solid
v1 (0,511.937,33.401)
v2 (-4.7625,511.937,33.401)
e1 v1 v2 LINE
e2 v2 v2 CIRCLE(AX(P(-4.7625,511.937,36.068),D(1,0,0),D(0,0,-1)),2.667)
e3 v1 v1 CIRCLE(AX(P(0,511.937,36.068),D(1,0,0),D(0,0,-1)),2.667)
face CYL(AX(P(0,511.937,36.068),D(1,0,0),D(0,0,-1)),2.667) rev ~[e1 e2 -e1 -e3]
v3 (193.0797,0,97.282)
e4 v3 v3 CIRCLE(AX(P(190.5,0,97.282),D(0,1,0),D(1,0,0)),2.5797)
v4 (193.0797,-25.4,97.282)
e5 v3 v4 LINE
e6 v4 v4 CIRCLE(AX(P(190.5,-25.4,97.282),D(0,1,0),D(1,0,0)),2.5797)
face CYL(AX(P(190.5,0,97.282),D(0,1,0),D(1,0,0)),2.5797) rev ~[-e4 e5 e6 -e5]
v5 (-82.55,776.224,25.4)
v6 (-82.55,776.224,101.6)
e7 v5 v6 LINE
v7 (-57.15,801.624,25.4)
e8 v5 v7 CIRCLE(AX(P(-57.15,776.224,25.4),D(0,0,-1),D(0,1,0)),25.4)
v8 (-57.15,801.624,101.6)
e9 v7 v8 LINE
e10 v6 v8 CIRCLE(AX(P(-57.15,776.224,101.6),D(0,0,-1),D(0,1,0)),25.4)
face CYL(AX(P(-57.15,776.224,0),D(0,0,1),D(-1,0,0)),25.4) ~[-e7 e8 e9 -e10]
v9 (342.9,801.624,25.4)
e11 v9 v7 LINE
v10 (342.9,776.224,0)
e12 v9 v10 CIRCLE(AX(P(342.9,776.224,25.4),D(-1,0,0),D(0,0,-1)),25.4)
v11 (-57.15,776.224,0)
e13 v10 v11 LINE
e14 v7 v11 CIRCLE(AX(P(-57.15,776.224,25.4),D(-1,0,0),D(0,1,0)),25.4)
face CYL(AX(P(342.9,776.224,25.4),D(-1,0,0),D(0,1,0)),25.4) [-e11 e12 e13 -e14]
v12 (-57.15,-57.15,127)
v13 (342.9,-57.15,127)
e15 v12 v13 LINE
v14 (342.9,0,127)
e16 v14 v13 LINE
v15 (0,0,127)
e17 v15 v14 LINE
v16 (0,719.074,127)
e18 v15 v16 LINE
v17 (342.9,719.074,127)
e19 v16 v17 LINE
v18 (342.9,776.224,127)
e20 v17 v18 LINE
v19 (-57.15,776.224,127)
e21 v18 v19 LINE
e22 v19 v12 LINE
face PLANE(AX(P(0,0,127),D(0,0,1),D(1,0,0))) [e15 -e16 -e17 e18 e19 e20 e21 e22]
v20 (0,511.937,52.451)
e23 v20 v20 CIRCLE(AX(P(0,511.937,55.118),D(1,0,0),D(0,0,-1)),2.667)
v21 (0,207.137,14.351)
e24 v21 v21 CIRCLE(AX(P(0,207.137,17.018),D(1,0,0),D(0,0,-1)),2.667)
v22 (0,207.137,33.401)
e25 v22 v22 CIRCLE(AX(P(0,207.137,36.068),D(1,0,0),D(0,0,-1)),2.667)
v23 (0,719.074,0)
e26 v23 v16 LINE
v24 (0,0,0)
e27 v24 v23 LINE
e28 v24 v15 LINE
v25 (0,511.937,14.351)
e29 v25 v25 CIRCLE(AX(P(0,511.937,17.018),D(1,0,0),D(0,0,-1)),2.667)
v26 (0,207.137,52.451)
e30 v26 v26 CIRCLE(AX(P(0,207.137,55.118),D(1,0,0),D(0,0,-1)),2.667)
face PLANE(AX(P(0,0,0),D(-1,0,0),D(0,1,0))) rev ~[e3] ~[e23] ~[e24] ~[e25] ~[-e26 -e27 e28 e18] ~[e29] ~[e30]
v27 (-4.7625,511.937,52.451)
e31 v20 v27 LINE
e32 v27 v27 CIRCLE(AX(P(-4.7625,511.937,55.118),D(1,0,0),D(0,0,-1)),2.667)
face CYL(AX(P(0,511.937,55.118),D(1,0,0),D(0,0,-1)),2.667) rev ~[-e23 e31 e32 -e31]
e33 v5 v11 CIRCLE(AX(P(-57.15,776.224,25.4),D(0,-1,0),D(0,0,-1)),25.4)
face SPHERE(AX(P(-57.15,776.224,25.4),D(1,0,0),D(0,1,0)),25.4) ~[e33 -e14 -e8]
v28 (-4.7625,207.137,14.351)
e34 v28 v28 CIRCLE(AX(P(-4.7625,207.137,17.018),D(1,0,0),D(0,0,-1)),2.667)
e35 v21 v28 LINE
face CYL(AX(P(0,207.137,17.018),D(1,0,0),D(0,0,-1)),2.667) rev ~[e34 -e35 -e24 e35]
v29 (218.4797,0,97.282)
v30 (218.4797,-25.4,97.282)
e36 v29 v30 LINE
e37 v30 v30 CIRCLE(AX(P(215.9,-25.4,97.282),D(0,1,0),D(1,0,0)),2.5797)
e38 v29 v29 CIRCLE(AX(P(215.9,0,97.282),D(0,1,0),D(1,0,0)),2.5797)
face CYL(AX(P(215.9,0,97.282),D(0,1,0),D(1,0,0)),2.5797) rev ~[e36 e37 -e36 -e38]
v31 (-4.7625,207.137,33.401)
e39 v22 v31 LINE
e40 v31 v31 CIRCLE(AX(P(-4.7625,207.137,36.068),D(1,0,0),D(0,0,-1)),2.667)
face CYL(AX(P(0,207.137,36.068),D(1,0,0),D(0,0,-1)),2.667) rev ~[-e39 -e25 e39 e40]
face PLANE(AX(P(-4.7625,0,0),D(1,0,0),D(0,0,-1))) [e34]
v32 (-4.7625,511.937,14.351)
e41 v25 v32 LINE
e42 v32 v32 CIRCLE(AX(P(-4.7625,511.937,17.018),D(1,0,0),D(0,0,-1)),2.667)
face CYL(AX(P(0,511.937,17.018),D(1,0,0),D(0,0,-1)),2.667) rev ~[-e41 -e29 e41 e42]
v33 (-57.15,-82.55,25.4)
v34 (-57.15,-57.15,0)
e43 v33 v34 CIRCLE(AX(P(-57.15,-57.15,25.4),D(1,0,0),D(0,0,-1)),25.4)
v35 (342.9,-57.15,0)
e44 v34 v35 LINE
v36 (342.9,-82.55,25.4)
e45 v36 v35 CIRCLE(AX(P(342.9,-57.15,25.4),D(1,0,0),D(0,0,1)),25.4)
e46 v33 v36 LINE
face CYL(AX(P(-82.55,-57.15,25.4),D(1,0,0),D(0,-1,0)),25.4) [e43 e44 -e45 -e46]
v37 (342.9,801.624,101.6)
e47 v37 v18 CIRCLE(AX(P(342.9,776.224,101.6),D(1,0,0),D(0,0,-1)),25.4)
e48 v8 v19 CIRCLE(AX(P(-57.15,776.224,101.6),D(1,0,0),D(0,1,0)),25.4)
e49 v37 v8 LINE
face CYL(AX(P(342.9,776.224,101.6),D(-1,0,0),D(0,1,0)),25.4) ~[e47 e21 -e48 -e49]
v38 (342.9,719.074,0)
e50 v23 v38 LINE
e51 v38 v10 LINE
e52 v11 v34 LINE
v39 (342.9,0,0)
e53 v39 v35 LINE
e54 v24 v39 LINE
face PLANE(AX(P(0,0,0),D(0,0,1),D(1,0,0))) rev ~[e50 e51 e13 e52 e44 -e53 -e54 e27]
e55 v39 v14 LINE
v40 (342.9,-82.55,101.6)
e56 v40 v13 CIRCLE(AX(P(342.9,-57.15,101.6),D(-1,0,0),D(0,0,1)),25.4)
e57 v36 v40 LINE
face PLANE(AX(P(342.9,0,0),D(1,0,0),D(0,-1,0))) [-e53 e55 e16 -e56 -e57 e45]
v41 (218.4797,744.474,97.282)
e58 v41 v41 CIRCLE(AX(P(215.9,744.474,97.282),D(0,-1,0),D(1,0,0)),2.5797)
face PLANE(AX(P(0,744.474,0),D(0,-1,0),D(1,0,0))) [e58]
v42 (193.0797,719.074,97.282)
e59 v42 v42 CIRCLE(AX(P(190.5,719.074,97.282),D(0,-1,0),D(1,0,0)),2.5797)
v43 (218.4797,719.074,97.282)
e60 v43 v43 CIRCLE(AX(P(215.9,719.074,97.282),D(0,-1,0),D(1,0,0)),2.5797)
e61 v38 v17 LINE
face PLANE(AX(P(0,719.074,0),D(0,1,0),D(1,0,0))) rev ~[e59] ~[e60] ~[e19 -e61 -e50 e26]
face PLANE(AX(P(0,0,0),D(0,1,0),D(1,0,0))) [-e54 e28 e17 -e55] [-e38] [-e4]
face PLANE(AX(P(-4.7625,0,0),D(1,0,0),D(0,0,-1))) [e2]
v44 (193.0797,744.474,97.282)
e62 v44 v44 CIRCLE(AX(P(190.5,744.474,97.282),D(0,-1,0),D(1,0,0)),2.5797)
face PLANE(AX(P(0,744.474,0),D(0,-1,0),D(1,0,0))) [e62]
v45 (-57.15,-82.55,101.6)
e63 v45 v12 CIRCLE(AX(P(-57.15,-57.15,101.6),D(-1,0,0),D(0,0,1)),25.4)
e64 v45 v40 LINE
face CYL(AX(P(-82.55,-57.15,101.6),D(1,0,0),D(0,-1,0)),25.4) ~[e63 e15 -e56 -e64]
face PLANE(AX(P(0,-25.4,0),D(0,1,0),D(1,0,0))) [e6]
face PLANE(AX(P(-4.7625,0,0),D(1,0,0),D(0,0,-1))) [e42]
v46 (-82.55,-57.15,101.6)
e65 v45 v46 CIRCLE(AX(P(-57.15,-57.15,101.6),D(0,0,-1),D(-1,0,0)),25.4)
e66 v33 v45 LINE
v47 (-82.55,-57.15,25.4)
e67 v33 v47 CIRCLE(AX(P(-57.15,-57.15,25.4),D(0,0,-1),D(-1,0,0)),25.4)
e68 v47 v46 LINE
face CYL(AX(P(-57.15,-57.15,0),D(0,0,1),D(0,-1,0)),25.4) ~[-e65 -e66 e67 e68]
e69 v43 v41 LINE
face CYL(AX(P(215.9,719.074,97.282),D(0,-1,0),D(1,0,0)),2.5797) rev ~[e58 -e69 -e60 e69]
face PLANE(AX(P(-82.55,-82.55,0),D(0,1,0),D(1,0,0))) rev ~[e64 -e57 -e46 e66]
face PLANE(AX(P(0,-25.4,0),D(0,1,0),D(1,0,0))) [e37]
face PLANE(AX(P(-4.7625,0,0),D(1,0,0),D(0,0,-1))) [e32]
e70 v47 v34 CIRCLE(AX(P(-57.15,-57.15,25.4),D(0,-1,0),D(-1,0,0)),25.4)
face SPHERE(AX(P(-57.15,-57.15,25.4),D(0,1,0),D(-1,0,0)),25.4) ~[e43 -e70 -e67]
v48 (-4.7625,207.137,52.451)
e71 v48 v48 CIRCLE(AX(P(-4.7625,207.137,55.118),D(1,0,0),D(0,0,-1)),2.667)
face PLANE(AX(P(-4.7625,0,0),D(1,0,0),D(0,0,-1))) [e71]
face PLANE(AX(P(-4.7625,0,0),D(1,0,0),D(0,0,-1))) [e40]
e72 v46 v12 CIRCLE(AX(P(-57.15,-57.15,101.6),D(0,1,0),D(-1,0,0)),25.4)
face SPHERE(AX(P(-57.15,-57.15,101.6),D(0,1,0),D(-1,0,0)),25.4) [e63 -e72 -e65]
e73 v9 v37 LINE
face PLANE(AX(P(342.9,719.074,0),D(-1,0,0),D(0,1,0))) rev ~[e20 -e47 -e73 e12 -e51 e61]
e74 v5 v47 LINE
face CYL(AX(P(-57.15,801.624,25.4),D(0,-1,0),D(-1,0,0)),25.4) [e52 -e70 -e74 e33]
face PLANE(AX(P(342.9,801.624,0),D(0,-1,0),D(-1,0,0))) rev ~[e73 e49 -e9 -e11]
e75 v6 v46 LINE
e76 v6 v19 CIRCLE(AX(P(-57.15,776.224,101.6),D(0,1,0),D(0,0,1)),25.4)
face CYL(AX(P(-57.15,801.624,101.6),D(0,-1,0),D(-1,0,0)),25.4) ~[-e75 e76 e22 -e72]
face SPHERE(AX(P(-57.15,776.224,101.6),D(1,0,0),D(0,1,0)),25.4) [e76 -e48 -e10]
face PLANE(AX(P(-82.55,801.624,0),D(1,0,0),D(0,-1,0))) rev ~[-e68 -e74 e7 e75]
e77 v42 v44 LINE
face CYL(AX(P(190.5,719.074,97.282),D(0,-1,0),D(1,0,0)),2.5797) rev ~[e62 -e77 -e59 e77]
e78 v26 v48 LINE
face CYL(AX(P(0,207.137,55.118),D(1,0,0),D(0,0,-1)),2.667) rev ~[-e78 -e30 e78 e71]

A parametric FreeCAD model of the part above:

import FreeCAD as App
import Part
import Sketcher
from FreeCAD import Vector
Q = App.Units.Quantity


def edges_at(feature, points):
    """Names of the edges that pass closest to the given points."""
    edges = feature.Shape.Edges
    near = lambda p: min(range(len(edges)), key=lambda i: edges[i].distToShape(Part.Vertex(*p))[0])
    return sorted({f"Edge{near(p) + 1}" for p in points})

doc = App.newDocument("Part")
params = doc.addObject("Spreadsheet::Sheet", "Params")
for row, (alias, value) in enumerate([
    ("sketch1_width", "13.5 in"),
    ("sketch1_height", "28.31 in"),
    ("sketch1_height2", "3.25 in"),
    ("pad1_length", "5 in"),
    ("fillet_radius", "1 in"),
    ("sketch2_diameter", "0.21 in"),
    ("pocket1_length", "0.1875 in"),
    ("sketch3_diameter", "0.203126 in"),
    ("pocket2_length", "1 in"),
    ("sketch4_diameter", "0.203126 in"),
    ("pocket3_length", "1 in"),
], start=1):
    params.set(f"A{row}", alias)
    params.set(f"B{row}", "=" + value)
    params.setAlias(f"B{row}", alias)

body = doc.addObject("PartDesign::Body", "Body")

# Sketch on XY plane
sketch1 = body.newObject("Sketcher::SketchObject", "Sketch")
sketch1.AttachmentSupport = (doc.getObject("XY_Plane"), [""])
sketch1.MapMode = "FlatFace"
sketch1.addGeometry(Part.LineSegment(Vector(343, 0, 0), Vector(0, 0, 0)), False)
sketch1.addGeometry(Part.LineSegment(Vector(0, 0, 0), Vector(0, 719, 0)), False)
sketch1.addGeometry(Part.LineSegment(Vector(0, 719, 0), Vector(343, 719, 0)), False)
sketch1.addGeometry(Part.LineSegment(Vector(343, 719, 0), Vector(343, 802, 0)), False)
sketch1.addGeometry(Part.LineSegment(Vector(343, 802, 0), Vector(-83, 802, 0)), False)
sketch1.addGeometry(Part.LineSegment(Vector(-83, 802, 0), Vector(-83, -83, 0)), False)
sketch1.addGeometry(Part.LineSegment(Vector(-83, -83, 0), Vector(343, -83, 0)), False)
sketch1.addGeometry(Part.LineSegment(Vector(343, -83, 0), Vector(343, 0, 0)), False)
sketch1.addConstraint(Sketcher.Constraint("Coincident", 0, 2, 1, 1))
sketch1.addConstraint(Sketcher.Constraint("Coincident", 1, 2, 2, 1))
sketch1.addConstraint(Sketcher.Constraint("Coincident", 2, 2, 3, 1))
sketch1.addConstraint(Sketcher.Constraint("Coincident", 3, 2, 4, 1))
sketch1.addConstraint(Sketcher.Constraint("Coincident", 4, 2, 5, 1))
sketch1.addConstraint(Sketcher.Constraint("Coincident", 5, 2, 6, 1))
sketch1.addConstraint(Sketcher.Constraint("Coincident", 6, 2, 7, 1))
sketch1.addConstraint(Sketcher.Constraint("Coincident", 7, 2, 0, 1))
sketch1.addConstraint(Sketcher.Constraint("Horizontal", 0))
sketch1.addConstraint(Sketcher.Constraint("Vertical", 1))
sketch1.addConstraint(Sketcher.Constraint("Horizontal", 2))
sketch1.addConstraint(Sketcher.Constraint("Vertical", 3))
sketch1.addConstraint(Sketcher.Constraint("Horizontal", 4))
sketch1.addConstraint(Sketcher.Constraint("Vertical", 5))
sketch1.addConstraint(Sketcher.Constraint("Horizontal", 6))
sketch1.addConstraint(Sketcher.Constraint("Vertical", 7))
sketch1.addConstraint(Sketcher.Constraint("Coincident", 0, 2, -1, 1))
sketch1.addConstraint(Sketcher.Constraint("Vertical", 3, 2, 6, 2))
sketch1.addConstraint(Sketcher.Constraint("Equal", 3, 7))
sketch1.addConstraint(Sketcher.Constraint("DistanceX", 0, 2, 0, 1, Q("13.5 in")))
sketch1.addConstraint(Sketcher.Constraint("DistanceY", 1, 1, 1, 2, Q("28.31 in")))
sketch1.addConstraint(Sketcher.Constraint("DistanceY", 3, 1, 3, 2, Q("3.25 in")))
sketch1.addConstraint(Sketcher.Constraint("DistanceX", 4, 2, -1, 1, Q("3.25 in")))
sketch1.setExpression("Constraints[19]", "Params.sketch1_width")
sketch1.setExpression("Constraints[20]", "Params.sketch1_height")
sketch1.setExpression("Constraints[21]", "Params.sketch1_height2")
pad1 = body.newObject("PartDesign::Pad", "Pad")
pad1.Profile = sketch1
pad1.setExpression("Length", "Params.pad1_length")
doc.recompute()

fillet = body.newObject("PartDesign::Fillet", "Fillet")
fillet.Base = (pad1, edges_at(pad1, [
    (130.175, 801.624, 127),
    (130.175, 801.624, 0),
    (-82.55, 801.624, 63.5),
    (-82.55, 359.537, 127),
    (-82.55, 359.537, 0),
    (-82.55, -82.55, 63.5),
    (130.175, -82.55, 0),
    (130.175, -82.55, 127),
]))
fillet.setExpression("Radius", "Params.fillet_radius")

# Sketch on YZ plane
sketch2 = body.newObject("Sketcher::SketchObject", "Sketch001")
sketch2.AttachmentSupport = (doc.getObject("YZ_Plane"), [""])
sketch2.MapMode = "FlatFace"
sketch2.addGeometry(Part.Circle(Vector(207.1, 55.1, 0), Vector(0, 0, 1), 2.7), False)
sketch2.addGeometry(Part.Circle(Vector(207.1, 36.1, 0), Vector(0, 0, 1), 2.7), False)
sketch2.addGeometry(Part.Circle(Vector(207.1, 17, 0), Vector(0, 0, 1), 2.7), False)
sketch2.addGeometry(Part.Circle(Vector(511.9, 55.1, 0), Vector(0, 0, 1), 2.7), False)
sketch2.addGeometry(Part.Circle(Vector(511.9, 36.1, 0), Vector(0, 0, 1), 2.7), False)
sketch2.addGeometry(Part.Circle(Vector(511.9, 17, 0), Vector(0, 0, 1), 2.7), False)
sketch2.addConstraint(Sketcher.Constraint("Equal", 0, 1))
sketch2.addConstraint(Sketcher.Constraint("Equal", 1, 2))
sketch2.addConstraint(Sketcher.Constraint("Equal", 2, 3))
sketch2.addConstraint(Sketcher.Constraint("Equal", 3, 4))
sketch2.addConstraint(Sketcher.Constraint("Equal", 4, 5))
sketch2.addConstraint(Sketcher.Constraint("Horizontal", 0, 3, 3, 3))
sketch2.addConstraint(Sketcher.Constraint("Horizontal", 1, 3, 4, 3))
sketch2.addConstraint(Sketcher.Constraint("Horizontal", 2, 3, 5, 3))
sketch2.addConstraint(Sketcher.Constraint("Vertical", 0, 3, 1, 3))
sketch2.addConstraint(Sketcher.Constraint("Vertical", 1, 3, 2, 3))
sketch2.addConstraint(Sketcher.Constraint("Vertical", 3, 3, 4, 3))
sketch2.addConstraint(Sketcher.Constraint("Vertical", 4, 3, 5, 3))
sketch2.addConstraint(Sketcher.Constraint("Diameter", 0, Q("0.21 in")))
sketch2.addConstraint(Sketcher.Constraint("DistanceY", 1, 3, 0, 3, Q("0.75 in")))
sketch2.addConstraint(Sketcher.Constraint("DistanceY", 2, 3, 1, 3, Q("0.75 in")))
sketch2.addConstraint(Sketcher.Constraint("DistanceX", -1, 1, 0, 3, Q("8.155 in")))
sketch2.addConstraint(Sketcher.Constraint("DistanceX", 0, 3, 3, 3, Q("12 in")))
sketch2.addConstraint(Sketcher.Constraint("DistanceY", -1, 1, 0, 3, Q("2.17 in")))
sketch2.setExpression("Constraints[12]", "Params.sketch2_diameter")
pocket1 = body.newObject("PartDesign::Pocket", "Pocket")
pocket1.Profile = sketch2
pocket1.setExpression("Length", "Params.pocket1_length")

# Sketch on XZ plane
sketch3 = body.newObject("Sketcher::SketchObject", "Sketch002")
sketch3.AttachmentSupport = (doc.getObject("XZ_Plane"), [""])
sketch3.MapMode = "FlatFace"
sketch3.AttachmentOffset = App.Placement(Vector(0, 0, -28.31 * 25.4), App.Rotation())
sketch3.addGeometry(Part.Circle(Vector(190.5, 97.3, 0), Vector(0, 0, 1), 2.6), False)
sketch3.addGeometry(Part.Circle(Vector(215.9, 97.3, 0), Vector(0, 0, 1), 2.6), False)
sketch3.addConstraint(Sketcher.Constraint("Equal", 0, 1))
sketch3.addConstraint(Sketcher.Constraint("Horizontal", 0, 3, 1, 3))
sketch3.addConstraint(Sketcher.Constraint("Diameter", 0, Q("0.203126 in")))
sketch3.addConstraint(Sketcher.Constraint("DistanceX", 0, 3, 1, 3, Q("1 in")))
sketch3.addConstraint(Sketcher.Constraint("DistanceX", -1, 1, 0, 3, Q("7.5 in")))
sketch3.addConstraint(Sketcher.Constraint("DistanceY", -1, 1, 0, 3, Q("3.83 in")))
sketch3.setExpression("Constraints[2]", "Params.sketch3_diameter")
pocket2 = body.newObject("PartDesign::Pocket", "Pocket001")
pocket2.Profile = sketch3
pocket2.setExpression("Length", "Params.pocket2_length")

# Sketch on XZ plane
sketch4 = body.newObject("Sketcher::SketchObject", "Sketch003")
sketch4.AttachmentSupport = (doc.getObject("XZ_Plane"), [""])
sketch4.MapMode = "FlatFace"
sketch4.addGeometry(Part.Circle(Vector(190.5, 97.3, 0), Vector(0, 0, 1), 2.6), False)
sketch4.addGeometry(Part.Circle(Vector(215.9, 97.3, 0), Vector(0, 0, 1), 2.6), False)
sketch4.addConstraint(Sketcher.Constraint("Equal", 0, 1))
sketch4.addConstraint(Sketcher.Constraint("Horizontal", 0, 3, 1, 3))
sketch4.addConstraint(Sketcher.Constraint("Diameter", 0, Q("0.203126 in")))
sketch4.addConstraint(Sketcher.Constraint("DistanceX", 0, 3, 1, 3, Q("1 in")))
sketch4.addConstraint(Sketcher.Constraint("DistanceX", -1, 1, 0, 3, Q("7.5 in")))
sketch4.addConstraint(Sketcher.Constraint("DistanceY", -1, 1, 0, 3, Q("3.83 in")))
sketch4.setExpression("Constraints[2]", "Params.sketch4_diameter")
pocket3 = body.newObject("PartDesign::Pocket", "Pocket002")
pocket3.Profile = sketch4
pocket3.setExpression("Length", "Params.pocket3_length")
pocket3.Reversed = True

doc.recompute()
